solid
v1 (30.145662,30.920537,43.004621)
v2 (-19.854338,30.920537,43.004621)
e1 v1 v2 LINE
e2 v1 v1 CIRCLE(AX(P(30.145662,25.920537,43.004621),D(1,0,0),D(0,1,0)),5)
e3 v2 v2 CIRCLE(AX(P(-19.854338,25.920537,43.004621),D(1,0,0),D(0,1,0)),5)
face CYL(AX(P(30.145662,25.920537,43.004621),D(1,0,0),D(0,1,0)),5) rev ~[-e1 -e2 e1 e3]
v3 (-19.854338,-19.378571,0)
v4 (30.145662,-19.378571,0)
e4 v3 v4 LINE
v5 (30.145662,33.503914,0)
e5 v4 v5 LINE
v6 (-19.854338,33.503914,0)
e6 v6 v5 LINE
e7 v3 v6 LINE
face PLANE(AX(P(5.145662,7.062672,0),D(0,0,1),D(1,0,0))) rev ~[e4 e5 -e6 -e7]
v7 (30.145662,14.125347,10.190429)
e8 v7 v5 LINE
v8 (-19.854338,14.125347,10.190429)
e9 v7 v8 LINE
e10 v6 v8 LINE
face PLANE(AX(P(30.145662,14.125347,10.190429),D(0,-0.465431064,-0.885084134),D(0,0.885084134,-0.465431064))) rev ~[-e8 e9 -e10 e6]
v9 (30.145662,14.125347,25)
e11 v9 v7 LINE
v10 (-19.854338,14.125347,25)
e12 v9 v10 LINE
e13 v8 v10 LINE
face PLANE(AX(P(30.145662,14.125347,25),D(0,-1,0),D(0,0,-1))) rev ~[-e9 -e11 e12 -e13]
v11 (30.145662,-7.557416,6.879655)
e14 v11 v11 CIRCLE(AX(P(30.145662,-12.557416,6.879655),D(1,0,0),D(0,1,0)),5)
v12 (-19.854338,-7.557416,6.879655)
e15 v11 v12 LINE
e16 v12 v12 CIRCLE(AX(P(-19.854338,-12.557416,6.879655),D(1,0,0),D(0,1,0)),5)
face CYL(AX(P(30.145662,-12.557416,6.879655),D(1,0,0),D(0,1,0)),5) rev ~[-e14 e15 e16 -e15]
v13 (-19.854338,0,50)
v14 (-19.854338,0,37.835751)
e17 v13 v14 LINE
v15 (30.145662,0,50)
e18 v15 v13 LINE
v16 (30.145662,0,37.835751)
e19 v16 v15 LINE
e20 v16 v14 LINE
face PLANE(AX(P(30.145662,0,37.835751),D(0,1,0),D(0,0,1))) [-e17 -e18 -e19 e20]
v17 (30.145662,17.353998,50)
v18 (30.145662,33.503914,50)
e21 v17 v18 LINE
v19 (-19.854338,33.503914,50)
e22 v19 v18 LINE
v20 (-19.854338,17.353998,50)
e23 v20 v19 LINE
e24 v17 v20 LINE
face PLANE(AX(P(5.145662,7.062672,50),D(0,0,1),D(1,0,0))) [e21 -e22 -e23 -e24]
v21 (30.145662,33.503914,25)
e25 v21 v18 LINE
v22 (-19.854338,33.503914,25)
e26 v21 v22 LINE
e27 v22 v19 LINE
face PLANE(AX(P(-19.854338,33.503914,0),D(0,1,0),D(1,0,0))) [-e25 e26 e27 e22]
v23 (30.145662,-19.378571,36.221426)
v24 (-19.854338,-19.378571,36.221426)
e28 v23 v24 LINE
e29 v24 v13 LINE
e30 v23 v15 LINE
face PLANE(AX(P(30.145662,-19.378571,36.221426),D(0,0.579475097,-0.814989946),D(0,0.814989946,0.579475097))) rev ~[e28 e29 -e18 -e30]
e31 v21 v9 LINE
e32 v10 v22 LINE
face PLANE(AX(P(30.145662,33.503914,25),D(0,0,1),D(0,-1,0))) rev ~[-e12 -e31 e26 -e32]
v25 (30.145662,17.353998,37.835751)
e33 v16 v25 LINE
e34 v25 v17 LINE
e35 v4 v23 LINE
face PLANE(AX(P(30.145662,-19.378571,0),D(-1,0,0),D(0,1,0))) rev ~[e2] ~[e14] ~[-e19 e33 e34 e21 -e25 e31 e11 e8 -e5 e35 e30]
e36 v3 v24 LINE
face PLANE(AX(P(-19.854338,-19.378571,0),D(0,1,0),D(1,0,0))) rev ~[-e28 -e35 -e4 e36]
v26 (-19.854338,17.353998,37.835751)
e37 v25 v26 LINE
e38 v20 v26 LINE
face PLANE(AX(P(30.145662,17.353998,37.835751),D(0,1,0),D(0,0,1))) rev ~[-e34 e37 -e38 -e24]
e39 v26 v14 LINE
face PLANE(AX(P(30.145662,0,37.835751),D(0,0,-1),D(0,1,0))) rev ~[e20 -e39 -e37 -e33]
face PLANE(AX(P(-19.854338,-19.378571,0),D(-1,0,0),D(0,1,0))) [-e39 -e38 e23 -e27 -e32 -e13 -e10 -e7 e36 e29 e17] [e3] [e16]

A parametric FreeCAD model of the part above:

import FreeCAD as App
import Part
import Sketcher


def add_polygon(sketch, points):
    """Adds a closed chain of lines whose ends are joined by coincident constraints."""
    first, n = sketch.GeometryCount, len(points)
    for a, b in zip(points, points[1:] + points[:1]):
        sketch.addGeometry(Part.LineSegment(App.Vector(*a, 0), App.Vector(*b, 0)), False)
    for i in range(n):
        sketch.addConstraint(Sketcher.Constraint("Coincident", first + i, 2, first + (i + 1) % n, 1))

doc = App.newDocument("Part")
params = doc.addObject("Spreadsheet::Sheet", "Params")
for row, (alias, value) in enumerate([
    ("sketch1_width", "50 mm"),
    ("pad1_length", "50 mm"),
    ("pocket1_length", "50 mm"),
    ("sketch3_diameter", "10 mm"),
    ("sketch4_height", "25 mm"),
], start=1):
    params.set(f"A{row}", alias)
    params.set(f"B{row}", "=" + value)
    params.setAlias(f"B{row}", alias)

body = doc.addObject("PartDesign::Body", "Body")

# Sketch on XY plane
sketch1 = body.newObject("Sketcher::SketchObject", "Sketch")
sketch1.AttachmentSupport = (doc.getObject("XY_Plane"), [""])
sketch1.MapMode = "FlatFace"
add_polygon(sketch1, [(-19.854338, 33.503914), (-19.854338, -19.378571), (30.145662, -19.378571), (30.145662, 33.503914)])  # lines 0-3
sketch1.addConstraint(Sketcher.Constraint("Vertical", 0))
sketch1.addConstraint(Sketcher.Constraint("Horizontal", 1))
sketch1.addConstraint(Sketcher.Constraint("Vertical", 2))
sketch1.addConstraint(Sketcher.Constraint("Horizontal", 3))
sketch1.addConstraint(Sketcher.Constraint("DistanceX", 1, 1, 1, 2, 50.0))
sketch1.addConstraint(Sketcher.Constraint("DistanceY", 0, 2, 0, 1, 52.882485))
sketch1.addConstraint(Sketcher.Constraint("DistanceX", 0, 2, -1, 1, 19.854338))
sketch1.addConstraint(Sketcher.Constraint("DistanceY", 0, 2, -1, 1, 19.378571))
sketch1.setExpression("Constraints[8]", "Params.sketch1_width")
pad1 = body.newObject("PartDesign::Pad", "Pad")
pad1.Profile = sketch1
pad1.setExpression("Length", "Params.pad1_length")

# Sketch on YZ plane
sketch2 = body.newObject("Sketcher::SketchObject", "Sketch001")
sketch2.AttachmentSupport = (doc.getObject("YZ_Plane"), [""])
sketch2.MapMode = "FlatFace"
sketch2.AttachmentOffset = App.Placement(App.Vector(0, 0, 30.145662), App.Rotation())
add_polygon(sketch2, [(-19.378571, 50), (-19.378571, 36.221426), (0, 50)])  # lines 0-2
sketch2.addConstraint(Sketcher.Constraint("Vertical", 0))
sketch2.addConstraint(Sketcher.Constraint("Horizontal", 2))
sketch2.addConstraint(Sketcher.Constraint("PointOnObject", 1, 2, -2))
sketch2.addConstraint(Sketcher.Constraint("DistanceY", -1, 1, 1, 2, 50.0))
sketch2.addConstraint(Sketcher.Constraint("DistanceX", 2, 2, 2, 1, 19.378571))
sketch2.addConstraint(Sketcher.Constraint("Distance", 1, 23.777681))
pocket1 = body.newObject("PartDesign::Pocket", "Pocket")
pocket1.Profile = sketch2
pocket1.setExpression("Length", "Params.pocket1_length")

# Sketch on YZ plane
sketch3 = body.newObject("Sketcher::SketchObject", "Sketch002")
sketch3.AttachmentSupport = (doc.getObject("YZ_Plane"), [""])
sketch3.MapMode = "FlatFace"
sketch3.AttachmentOffset = App.Placement(App.Vector(0, 0, 30.145662), App.Rotation())
sketch3.addGeometry(Part.Circle(App.Vector(-12.557416, 6.879655, 0), App.Vector(0, 0, 1), 5), False)
sketch3.addGeometry(Part.Circle(App.Vector(25.920537, 43.004621, 0), App.Vector(0, 0, 1), 5), False)
sketch3.addConstraint(Sketcher.Constraint("Equal", 0, 1))
sketch3.addConstraint(Sketcher.Constraint("Diameter", 0, 10.0))
sketch3.addConstraint(Sketcher.Constraint("DistanceY", -1, 1, 1, 3, 43.004621))
sketch3.addConstraint(Sketcher.Constraint("DistanceX", 0, 3, -1, 1, 12.557416))
sketch3.addConstraint(Sketcher.Constraint("DistanceY", -1, 1, 0, 3, 6.879655))
sketch3.addConstraint(Sketcher.Constraint("DistanceX", -1, 1, 1, 3, 25.920537))
sketch3.setExpression("Constraints[1]", "Params.sketch3_diameter")
pocket2 = body.newObject("PartDesign::Pocket", "Pocket001")
pocket2.Profile = sketch3
pocket2.Type = "ThroughAll"

# Sketch on YZ plane
sketch4 = body.newObject("Sketcher::SketchObject", "Sketch003")
sketch4.AttachmentSupport = (doc.getObject("YZ_Plane"), [""])
sketch4.MapMode = "FlatFace"
sketch4.AttachmentOffset = App.Placement(App.Vector(0, 0, 30.145662), App.Rotation())
add_polygon(sketch4, [(33.503914, 0), (33.503914, 25), (14.125347, 25), (14.125347, 10.190429)])  # lines 0-3
add_polygon(sketch4, [(0, 50), (0, 37.835751), (17.353998, 37.835751), (17.353998, 50)])  # lines 4-7
sketch4.addConstraint(Sketcher.Constraint("Vertical", 0))
sketch4.addConstraint(Sketcher.Constraint("Horizontal", 1))
sketch4.addConstraint(Sketcher.Constraint("Vertical", 2))
sketch4.addConstraint(Sketcher.Constraint("Vertical", 4))
sketch4.addConstraint(Sketcher.Constraint("Horizontal", 5))
sketch4.addConstraint(Sketcher.Constraint("Vertical", 6))
sketch4.addConstraint(Sketcher.Constraint("Horizontal", 7))
sketch4.addConstraint(Sketcher.Constraint("PointOnObject", 3, 2, -1))
sketch4.addConstraint(Sketcher.Constraint("PointOnObject", 4, 2, -2))
sketch4.addConstraint(Sketcher.Constraint("DistanceY", 0, 1, 0, 2, 25.0))
sketch4.addConstraint(Sketcher.Constraint("DistanceY", -1, 1, 6, 2, 50.0))
sketch4.addConstraint(Sketcher.Constraint("DistanceX", 5, 1, 5, 2, 17.353998))
sketch4.addConstraint(Sketcher.Constraint("DistanceY", 2, 2, 2, 1, 14.809571))
sketch4.addConstraint(Sketcher.Constraint("DistanceY", 4, 2, 4, 1, 12.164249))
sketch4.addConstraint(Sketcher.Constraint("DistanceX", 1, 2, 1, 1, 19.378567))
sketch4.addConstraint(Sketcher.Constraint("DistanceX", 1, 2, 5, 2, 3.228651))
sketch4.setExpression("Constraints[17]", "Params.sketch4_height")
pocket3 = body.newObject("PartDesign::Pocket", "Pocket002")
pocket3.Profile = sketch4
pocket3.Type = "ThroughAll"

doc.recompute()
